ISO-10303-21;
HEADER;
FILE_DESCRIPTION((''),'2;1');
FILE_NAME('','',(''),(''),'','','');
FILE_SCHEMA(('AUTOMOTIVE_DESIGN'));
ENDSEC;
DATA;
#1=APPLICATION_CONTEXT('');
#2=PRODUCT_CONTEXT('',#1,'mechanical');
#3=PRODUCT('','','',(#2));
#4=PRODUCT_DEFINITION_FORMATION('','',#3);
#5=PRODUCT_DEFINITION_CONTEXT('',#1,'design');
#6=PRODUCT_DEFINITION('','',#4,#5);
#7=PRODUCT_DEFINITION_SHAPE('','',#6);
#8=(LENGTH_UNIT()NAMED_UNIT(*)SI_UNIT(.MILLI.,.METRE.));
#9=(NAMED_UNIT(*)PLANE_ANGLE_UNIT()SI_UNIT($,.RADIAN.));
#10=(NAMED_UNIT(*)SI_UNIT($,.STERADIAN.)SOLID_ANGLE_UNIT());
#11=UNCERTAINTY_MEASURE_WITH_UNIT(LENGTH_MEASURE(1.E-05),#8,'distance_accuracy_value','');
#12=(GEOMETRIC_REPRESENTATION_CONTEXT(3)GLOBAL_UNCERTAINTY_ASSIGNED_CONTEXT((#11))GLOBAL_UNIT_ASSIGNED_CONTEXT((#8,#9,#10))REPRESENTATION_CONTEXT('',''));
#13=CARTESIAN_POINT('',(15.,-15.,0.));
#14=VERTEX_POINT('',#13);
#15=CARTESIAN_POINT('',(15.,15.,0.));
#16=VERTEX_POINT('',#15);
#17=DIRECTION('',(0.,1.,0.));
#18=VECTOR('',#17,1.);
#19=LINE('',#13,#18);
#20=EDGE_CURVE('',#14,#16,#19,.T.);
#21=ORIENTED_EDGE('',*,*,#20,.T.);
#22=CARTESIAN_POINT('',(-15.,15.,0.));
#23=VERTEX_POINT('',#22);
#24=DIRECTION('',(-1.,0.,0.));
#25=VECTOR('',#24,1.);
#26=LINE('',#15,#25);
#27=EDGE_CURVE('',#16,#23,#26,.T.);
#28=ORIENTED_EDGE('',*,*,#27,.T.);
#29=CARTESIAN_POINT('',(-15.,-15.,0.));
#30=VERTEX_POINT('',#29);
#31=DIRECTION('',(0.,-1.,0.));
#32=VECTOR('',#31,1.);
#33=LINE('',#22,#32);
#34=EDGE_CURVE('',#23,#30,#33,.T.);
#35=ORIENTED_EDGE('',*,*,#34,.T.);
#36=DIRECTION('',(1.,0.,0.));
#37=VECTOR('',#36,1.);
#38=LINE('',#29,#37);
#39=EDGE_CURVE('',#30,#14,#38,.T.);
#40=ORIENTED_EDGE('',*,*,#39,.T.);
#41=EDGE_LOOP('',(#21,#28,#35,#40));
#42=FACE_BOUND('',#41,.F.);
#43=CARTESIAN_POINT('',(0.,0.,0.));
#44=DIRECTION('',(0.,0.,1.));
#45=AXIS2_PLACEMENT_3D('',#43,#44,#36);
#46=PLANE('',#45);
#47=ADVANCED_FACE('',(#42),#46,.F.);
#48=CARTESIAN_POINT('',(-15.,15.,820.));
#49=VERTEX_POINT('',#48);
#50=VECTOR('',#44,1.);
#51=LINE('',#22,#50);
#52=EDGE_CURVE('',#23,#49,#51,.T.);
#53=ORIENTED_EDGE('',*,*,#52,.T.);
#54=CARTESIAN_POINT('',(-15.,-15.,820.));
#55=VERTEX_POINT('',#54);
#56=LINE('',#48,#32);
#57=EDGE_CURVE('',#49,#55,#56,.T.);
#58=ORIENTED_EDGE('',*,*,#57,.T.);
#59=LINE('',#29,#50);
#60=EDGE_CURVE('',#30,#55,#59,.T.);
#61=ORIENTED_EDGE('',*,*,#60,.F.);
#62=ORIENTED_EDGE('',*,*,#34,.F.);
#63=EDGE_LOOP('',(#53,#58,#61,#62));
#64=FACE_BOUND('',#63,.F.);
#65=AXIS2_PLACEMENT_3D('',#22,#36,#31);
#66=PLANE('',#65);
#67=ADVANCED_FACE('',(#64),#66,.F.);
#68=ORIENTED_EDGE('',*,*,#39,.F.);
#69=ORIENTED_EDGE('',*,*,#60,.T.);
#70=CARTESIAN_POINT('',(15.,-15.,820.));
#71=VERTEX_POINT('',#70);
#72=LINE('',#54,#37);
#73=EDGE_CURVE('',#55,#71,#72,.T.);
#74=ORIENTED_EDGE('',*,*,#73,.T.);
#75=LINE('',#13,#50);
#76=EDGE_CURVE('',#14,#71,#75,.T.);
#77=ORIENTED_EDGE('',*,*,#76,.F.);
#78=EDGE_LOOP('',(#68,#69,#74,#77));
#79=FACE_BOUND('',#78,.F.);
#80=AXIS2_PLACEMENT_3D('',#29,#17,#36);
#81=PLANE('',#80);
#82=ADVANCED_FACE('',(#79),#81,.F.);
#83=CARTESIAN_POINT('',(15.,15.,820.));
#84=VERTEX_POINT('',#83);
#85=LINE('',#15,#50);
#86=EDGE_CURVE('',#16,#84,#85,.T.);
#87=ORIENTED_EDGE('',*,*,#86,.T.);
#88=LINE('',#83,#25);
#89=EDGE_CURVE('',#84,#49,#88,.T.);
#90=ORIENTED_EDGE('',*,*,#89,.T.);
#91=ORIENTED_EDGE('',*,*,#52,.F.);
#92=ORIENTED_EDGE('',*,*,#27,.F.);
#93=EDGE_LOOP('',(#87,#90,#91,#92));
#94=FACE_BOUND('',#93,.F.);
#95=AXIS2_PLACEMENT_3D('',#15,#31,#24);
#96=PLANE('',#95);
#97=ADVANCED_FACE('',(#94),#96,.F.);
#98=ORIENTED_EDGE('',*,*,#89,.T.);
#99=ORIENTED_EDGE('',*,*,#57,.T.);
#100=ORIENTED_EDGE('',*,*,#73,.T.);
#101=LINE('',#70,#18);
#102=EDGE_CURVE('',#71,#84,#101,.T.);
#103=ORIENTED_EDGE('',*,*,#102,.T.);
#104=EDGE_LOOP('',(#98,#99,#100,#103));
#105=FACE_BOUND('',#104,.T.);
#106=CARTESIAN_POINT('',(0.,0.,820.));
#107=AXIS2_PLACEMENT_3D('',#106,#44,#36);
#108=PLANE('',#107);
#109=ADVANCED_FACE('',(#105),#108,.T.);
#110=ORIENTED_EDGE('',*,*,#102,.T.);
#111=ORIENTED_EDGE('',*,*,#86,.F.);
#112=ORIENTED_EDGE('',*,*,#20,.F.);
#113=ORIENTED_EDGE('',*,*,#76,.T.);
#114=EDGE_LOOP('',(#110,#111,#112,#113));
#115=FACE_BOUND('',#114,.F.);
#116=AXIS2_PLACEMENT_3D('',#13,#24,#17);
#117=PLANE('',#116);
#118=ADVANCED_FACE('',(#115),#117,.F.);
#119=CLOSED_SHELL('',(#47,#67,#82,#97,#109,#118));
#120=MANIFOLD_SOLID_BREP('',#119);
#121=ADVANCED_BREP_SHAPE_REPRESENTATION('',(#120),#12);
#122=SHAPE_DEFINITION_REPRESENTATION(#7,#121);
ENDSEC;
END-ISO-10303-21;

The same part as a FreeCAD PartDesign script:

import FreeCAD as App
import Part
import Sketcher
from FreeCAD import Vector

doc = App.newDocument("Part")
body = doc.addObject("PartDesign::Body", "Body")

# Sketch on XY plane
sketch1 = body.newObject("Sketcher::SketchObject", "Sketch")
sketch1.AttachmentSupport = (doc.getObject("XY_Plane"), [""])
sketch1.MapMode = "FlatFace"
sketch1.addGeometry(Part.LineSegment(Vector(-15, 15, 0), Vector(-15, -15, 0)), False)
sketch1.addGeometry(Part.LineSegment(Vector(-15, -15, 0), Vector(15, -15, 0)), False)
sketch1.addGeometry(Part.LineSegment(Vector(15, -15, 0), Vector(15, 15, 0)), False)
sketch1.addGeometry(Part.LineSegment(Vector(15, 15, 0), Vector(-15, 15, 0)), False)
sketch1.addConstraint(Sketcher.Constraint("Coincident", 0, 2, 1, 1))
sketch1.addConstraint(Sketcher.Constraint("Coincident", 1, 2, 2, 1))
sketch1.addConstraint(Sketcher.Constraint("Coincident", 2, 2, 3, 1))
sketch1.addConstraint(Sketcher.Constraint("Coincident", 3, 2, 0, 1))
sketch1.addConstraint(Sketcher.Constraint("Vertical", 0))
sketch1.addConstraint(Sketcher.Constraint("Horizontal", 1))
sketch1.addConstraint(Sketcher.Constraint("Vertical", 2))
sketch1.addConstraint(Sketcher.Constraint("Horizontal", 3))
sketch1.addConstraint(Sketcher.Constraint("Symmetric", 0, 2, 2, 2, -1, 1))
sketch1.addConstraint(Sketcher.Constraint("Equal", 3, 0))
sketch1.addConstraint(Sketcher.Constraint("DistanceX", 1, 1, 1, 2, 30.0))
pad1 = body.newObject("PartDesign::Pad", "Pad")
pad1.Profile = sketch1
pad1.Length = 820

doc.recompute()
